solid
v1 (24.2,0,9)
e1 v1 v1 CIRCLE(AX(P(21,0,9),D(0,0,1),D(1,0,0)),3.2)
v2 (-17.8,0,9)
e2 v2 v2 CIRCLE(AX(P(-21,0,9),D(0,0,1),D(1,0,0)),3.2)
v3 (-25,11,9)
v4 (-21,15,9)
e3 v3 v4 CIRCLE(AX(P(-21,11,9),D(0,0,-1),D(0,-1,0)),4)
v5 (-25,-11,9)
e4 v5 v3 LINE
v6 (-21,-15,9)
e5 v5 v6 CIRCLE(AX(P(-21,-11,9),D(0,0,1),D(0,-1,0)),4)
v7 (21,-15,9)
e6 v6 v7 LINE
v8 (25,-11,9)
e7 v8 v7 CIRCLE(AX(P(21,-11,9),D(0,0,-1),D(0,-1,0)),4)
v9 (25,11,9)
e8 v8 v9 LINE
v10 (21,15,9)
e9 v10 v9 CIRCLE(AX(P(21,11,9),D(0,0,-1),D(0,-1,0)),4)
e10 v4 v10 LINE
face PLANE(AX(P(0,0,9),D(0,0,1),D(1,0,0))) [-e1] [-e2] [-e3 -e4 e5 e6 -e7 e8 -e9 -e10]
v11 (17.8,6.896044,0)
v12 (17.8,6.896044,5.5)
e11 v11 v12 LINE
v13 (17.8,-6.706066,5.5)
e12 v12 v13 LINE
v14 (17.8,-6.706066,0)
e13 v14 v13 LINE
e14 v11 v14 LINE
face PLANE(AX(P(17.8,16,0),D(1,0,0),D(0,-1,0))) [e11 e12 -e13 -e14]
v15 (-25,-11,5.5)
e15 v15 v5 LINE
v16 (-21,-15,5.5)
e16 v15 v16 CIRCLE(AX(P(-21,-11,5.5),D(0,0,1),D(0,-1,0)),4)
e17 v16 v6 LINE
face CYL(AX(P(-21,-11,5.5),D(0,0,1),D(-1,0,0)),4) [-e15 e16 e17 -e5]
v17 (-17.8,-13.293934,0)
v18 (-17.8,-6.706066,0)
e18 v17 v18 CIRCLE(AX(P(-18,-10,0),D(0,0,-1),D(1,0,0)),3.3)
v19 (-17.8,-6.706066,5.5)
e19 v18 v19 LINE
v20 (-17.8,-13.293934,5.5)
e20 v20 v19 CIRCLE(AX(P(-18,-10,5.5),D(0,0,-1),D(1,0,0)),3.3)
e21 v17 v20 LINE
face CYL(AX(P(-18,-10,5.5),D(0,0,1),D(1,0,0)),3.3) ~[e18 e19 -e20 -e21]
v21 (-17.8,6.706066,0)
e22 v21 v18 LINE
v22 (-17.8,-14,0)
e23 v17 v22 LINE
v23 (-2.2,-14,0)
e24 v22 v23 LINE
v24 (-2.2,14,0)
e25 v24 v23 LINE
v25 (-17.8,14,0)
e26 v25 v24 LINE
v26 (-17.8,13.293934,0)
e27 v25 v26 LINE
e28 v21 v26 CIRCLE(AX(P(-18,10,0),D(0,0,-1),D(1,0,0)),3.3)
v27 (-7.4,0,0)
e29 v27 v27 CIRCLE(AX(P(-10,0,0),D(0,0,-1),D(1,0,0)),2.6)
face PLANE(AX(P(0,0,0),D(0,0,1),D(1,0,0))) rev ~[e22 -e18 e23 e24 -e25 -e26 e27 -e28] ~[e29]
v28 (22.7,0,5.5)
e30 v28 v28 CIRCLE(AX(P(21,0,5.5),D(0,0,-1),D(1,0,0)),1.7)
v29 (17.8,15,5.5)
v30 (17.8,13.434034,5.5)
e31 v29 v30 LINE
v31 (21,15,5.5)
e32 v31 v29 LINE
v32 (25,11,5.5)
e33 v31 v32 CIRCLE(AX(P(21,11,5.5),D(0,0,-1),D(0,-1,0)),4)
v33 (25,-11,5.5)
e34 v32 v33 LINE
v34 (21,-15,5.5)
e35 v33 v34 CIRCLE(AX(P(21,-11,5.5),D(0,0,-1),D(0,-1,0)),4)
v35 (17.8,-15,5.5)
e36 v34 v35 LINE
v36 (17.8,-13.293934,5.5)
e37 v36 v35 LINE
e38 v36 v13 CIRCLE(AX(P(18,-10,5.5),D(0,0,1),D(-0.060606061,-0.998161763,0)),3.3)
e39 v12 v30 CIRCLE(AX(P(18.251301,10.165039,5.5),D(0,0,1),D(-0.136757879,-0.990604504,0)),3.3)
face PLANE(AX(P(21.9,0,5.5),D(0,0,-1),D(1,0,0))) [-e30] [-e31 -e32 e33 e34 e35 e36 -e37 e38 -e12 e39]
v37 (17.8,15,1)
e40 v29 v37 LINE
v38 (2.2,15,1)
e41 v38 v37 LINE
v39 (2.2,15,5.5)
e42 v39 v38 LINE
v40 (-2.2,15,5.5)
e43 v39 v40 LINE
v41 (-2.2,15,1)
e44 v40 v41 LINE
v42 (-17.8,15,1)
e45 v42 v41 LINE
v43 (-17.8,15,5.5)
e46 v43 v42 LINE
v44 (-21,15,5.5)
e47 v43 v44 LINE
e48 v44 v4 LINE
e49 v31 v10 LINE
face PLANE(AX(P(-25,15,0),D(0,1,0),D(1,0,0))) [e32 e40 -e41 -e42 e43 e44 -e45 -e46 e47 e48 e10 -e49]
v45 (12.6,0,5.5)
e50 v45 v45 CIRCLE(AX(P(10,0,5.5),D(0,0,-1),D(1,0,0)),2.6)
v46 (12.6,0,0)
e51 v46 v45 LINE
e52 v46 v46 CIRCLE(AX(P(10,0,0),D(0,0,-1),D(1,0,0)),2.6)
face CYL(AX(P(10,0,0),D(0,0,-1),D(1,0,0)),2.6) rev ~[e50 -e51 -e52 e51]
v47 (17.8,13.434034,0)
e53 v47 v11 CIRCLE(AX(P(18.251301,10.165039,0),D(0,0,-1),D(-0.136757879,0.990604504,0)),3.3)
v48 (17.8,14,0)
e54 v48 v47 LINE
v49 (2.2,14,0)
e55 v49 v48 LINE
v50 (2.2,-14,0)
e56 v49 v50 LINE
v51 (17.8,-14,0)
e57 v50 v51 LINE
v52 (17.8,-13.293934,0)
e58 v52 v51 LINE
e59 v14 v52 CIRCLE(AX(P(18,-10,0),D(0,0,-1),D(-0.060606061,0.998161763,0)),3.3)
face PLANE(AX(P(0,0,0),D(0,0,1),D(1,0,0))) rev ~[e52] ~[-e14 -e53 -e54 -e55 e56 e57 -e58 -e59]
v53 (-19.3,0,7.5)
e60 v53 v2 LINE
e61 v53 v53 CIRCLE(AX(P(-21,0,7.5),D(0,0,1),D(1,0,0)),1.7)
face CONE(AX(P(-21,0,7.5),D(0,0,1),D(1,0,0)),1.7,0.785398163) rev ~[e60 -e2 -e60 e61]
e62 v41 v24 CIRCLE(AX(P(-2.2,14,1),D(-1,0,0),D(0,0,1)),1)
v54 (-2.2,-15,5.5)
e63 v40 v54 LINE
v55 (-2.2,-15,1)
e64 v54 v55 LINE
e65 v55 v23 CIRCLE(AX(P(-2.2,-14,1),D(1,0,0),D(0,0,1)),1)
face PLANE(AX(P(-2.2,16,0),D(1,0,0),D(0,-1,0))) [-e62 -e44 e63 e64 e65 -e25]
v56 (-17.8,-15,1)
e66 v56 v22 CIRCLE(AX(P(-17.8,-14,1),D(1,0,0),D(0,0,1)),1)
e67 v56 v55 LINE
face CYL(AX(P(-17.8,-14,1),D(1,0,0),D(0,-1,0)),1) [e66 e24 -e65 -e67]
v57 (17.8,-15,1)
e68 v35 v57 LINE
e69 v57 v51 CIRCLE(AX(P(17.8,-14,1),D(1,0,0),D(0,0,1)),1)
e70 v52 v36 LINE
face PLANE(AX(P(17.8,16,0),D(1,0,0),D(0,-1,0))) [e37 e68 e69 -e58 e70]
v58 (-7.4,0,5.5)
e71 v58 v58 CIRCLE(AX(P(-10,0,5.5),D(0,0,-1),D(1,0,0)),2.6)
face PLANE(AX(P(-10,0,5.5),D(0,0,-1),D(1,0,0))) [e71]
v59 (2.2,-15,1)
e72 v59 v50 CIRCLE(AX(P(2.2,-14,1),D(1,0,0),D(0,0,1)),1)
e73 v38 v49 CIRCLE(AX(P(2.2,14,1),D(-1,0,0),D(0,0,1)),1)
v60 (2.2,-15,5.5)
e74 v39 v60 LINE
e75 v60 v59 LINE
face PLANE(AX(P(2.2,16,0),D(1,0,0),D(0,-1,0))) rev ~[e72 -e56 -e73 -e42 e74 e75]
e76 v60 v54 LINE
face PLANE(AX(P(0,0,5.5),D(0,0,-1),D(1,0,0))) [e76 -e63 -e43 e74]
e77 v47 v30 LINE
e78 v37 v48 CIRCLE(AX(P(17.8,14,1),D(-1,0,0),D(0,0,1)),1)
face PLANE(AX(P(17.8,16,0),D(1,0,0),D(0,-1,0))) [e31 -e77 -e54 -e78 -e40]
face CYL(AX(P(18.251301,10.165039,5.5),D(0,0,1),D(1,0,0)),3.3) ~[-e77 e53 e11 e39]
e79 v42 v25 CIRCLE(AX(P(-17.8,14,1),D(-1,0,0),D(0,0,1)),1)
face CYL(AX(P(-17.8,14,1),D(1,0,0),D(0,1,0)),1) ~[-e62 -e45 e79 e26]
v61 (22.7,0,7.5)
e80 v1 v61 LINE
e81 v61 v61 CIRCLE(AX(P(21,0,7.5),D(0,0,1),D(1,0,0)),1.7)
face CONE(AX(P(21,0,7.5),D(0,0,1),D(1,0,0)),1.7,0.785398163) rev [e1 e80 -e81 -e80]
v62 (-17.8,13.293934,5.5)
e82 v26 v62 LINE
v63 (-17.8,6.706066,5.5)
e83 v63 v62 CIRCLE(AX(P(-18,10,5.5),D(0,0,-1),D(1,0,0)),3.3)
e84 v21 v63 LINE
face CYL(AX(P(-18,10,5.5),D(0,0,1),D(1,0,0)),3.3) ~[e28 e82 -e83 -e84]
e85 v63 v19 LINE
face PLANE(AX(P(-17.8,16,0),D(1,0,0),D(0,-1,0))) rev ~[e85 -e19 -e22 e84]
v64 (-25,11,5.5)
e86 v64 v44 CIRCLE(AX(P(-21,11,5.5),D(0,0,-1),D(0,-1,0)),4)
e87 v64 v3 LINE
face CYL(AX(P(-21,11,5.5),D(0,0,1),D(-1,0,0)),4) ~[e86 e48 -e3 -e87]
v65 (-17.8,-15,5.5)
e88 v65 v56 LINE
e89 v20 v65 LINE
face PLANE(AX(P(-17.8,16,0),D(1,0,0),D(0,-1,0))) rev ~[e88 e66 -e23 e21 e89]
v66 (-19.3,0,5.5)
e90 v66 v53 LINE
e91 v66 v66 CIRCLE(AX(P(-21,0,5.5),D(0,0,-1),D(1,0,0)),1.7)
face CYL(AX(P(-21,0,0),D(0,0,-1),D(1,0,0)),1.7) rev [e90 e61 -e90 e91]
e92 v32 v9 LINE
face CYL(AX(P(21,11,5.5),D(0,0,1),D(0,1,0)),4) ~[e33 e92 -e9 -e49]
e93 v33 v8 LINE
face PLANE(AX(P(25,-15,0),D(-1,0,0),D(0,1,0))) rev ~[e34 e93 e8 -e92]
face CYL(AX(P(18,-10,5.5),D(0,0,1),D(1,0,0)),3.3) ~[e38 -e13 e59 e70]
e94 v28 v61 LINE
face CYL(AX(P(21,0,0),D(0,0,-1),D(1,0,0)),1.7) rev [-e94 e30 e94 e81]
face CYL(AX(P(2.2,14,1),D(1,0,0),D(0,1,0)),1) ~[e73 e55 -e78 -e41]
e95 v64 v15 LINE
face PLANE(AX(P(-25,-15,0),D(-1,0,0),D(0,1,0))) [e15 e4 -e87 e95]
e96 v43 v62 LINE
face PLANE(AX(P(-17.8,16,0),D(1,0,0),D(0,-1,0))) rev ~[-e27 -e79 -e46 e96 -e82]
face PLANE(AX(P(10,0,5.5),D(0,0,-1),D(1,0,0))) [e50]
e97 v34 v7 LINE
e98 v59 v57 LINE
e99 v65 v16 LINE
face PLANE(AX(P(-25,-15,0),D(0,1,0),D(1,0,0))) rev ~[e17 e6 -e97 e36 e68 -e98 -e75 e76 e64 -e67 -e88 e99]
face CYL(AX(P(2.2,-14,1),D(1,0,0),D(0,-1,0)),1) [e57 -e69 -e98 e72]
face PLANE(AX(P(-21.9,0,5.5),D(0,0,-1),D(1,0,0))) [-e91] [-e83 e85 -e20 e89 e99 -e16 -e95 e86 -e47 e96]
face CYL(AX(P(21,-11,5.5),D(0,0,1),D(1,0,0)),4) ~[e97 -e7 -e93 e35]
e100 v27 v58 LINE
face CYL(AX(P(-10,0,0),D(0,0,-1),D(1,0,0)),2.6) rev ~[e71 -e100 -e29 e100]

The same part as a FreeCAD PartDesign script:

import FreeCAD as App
import Part
import Sketcher
Q = App.Units.Quantity


def edges_at(feature, points):
    """Names of the edges that pass closest to the given points."""
    edges = feature.Shape.Edges
    near = lambda p: min(range(len(edges)), key=lambda i: edges[i].distToShape(Part.Vertex(*p))[0])
    return sorted({f"Edge{near(p) + 1}" for p in points})


def add_polygon(sketch, points):
    """Adds a closed chain of lines whose ends are joined by coincident constraints."""
    first, n = sketch.GeometryCount, len(points)
    for a, b in zip(points, points[1:] + points[:1]):
        sketch.addGeometry(Part.LineSegment(App.Vector(*a, 0), App.Vector(*b, 0)), False)
    for i in range(n):
        sketch.addConstraint(Sketcher.Constraint("Coincident", first + i, 2, first + (i + 1) % n, 1))

doc = App.newDocument("Part")
body = doc.addObject("PartDesign::Body", "Body")

# Sketch on XY plane
sketch1 = body.newObject("Sketcher::SketchObject", "Sketch")
sketch1.AttachmentSupport = (doc.getObject("XY_Plane"), [""])
sketch1.MapMode = "FlatFace"
add_polygon(sketch1, [(-25, 15), (-25, -15), (25, -15), (25, 15)])  # lines 0-3
sketch1.addGeometry(Part.Circle(App.Vector(-21, 0, 0), App.Vector(0, 0, 1), 1.7), False)  # 4
sketch1.addGeometry(Part.Circle(App.Vector(21, 0, 0), App.Vector(0, 0, 1), 1.7), False)  # 5
sketch1.addConstraint(Sketcher.Constraint("Vertical", 0))
sketch1.addConstraint(Sketcher.Constraint("Horizontal", 1))
sketch1.addConstraint(Sketcher.Constraint("Vertical", 2))
sketch1.addConstraint(Sketcher.Constraint("Horizontal", 3))
sketch1.addConstraint(Sketcher.Constraint("Equal", 4, 5))
sketch1.addConstraint(Sketcher.Constraint("Symmetric", 4, 3, 5, 3, -1, 1))
sketch1.addConstraint(Sketcher.Constraint("Symmetric", 0, 2, 2, 2, -1, 1))
sketch1.addConstraint(Sketcher.Constraint("PointOnObject", 4, 3, -1))
sketch1.addConstraint(Sketcher.Constraint("Diameter", 4, Q("3.4 mm")))
sketch1.addConstraint(Sketcher.Constraint("DistanceX", 1, 1, 1, 2, Q("50 mm")))
sketch1.addConstraint(Sketcher.Constraint("DistanceY", 0, 2, 0, 1, Q("30 mm")))
sketch1.addConstraint(Sketcher.Constraint("DistanceX", 4, 3, -1, 1, Q("21 mm")))
pad1 = body.newObject("PartDesign::Pad", "Pad")
pad1.Profile = sketch1
pad1.Length = 9
doc.recompute()

chamfer = body.newObject("PartDesign::Chamfer", "Chamfer")
chamfer.Base = (pad1, edges_at(pad1, [(-22.7, 0, 9)]))
chamfer.Size = 1.5
doc.recompute()

chamfer2 = body.newObject("PartDesign::Chamfer", "Chamfer001")
chamfer2.Base = (chamfer, edges_at(chamfer, [(19.3, 0, 9)]))
chamfer2.Size = 1.5

# Sketch on XY plane
sketch2 = body.newObject("Sketcher::SketchObject", "Sketch001")
sketch2.AttachmentSupport = (doc.getObject("XY_Plane"), [""])
sketch2.MapMode = "FlatFace"
sketch2.addGeometry(Part.Circle(App.Vector(-10, 0, 0), App.Vector(0, 0, 1), 2.6), False)  # 0
sketch2.addGeometry(Part.Circle(App.Vector(10, 0, 0), App.Vector(0, 0, 1), 2.6), False)  # 1
add_polygon(sketch2, [(-2.2, -16), (-2.2, 16), (2.2, 16), (2.2, -16)])  # lines 2-5
add_polygon(sketch2, [(-26, -16), (-26, 16), (-17.8, 16), (-17.8, -16)])  # lines 6-9
add_polygon(sketch2, [(17.8, -16), (17.8, 16), (26, 16), (26, -16)])  # lines 10-13
sketch2.addConstraint(Sketcher.Constraint("Vertical", 2))
sketch2.addConstraint(Sketcher.Constraint("Horizontal", 3))
sketch2.addConstraint(Sketcher.Constraint("Vertical", 4))
sketch2.addConstraint(Sketcher.Constraint("Horizontal", 5))
sketch2.addConstraint(Sketcher.Constraint("Vertical", 6))
sketch2.addConstraint(Sketcher.Constraint("Horizontal", 7))
sketch2.addConstraint(Sketcher.Constraint("Vertical", 8))
sketch2.addConstraint(Sketcher.Constraint("Horizontal", 9))
sketch2.addConstraint(Sketcher.Constraint("Vertical", 10))
sketch2.addConstraint(Sketcher.Constraint("Horizontal", 11))
sketch2.addConstraint(Sketcher.Constraint("Vertical", 12))
sketch2.addConstraint(Sketcher.Constraint("Horizontal", 13))
sketch2.addConstraint(Sketcher.Constraint("Equal", 0, 1))
sketch2.addConstraint(Sketcher.Constraint("Symmetric", 0, 3, 1, 3, -1, 1))
sketch2.addConstraint(Sketcher.Constraint("Symmetric", 2, 2, 4, 2, -1, 1))
sketch2.addConstraint(Sketcher.Constraint("Symmetric", 8, 2, 10, 2, -1, 1))
sketch2.addConstraint(Sketcher.Constraint("Symmetric", 6, 2, 12, 2, -1, 1))
sketch2.addConstraint(Sketcher.Constraint("PointOnObject", 0, 3, -1))
sketch2.addConstraint(Sketcher.Constraint("Horizontal", 3, 2, 6, 2))
sketch2.addConstraint(Sketcher.Constraint("Horizontal", 5, 2, 8, 2))
sketch2.addConstraint(Sketcher.Constraint("Diameter", 0, Q("5.2 mm")))
sketch2.addConstraint(Sketcher.Constraint("DistanceY", 2, 1, 2, 2, Q("32 mm")))
sketch2.addConstraint(Sketcher.Constraint("DistanceX", 3, 1, 3, 2, Q("4.4 mm")))
sketch2.addConstraint(Sketcher.Constraint("DistanceX", 7, 1, 7, 2, Q("8.2 mm")))
sketch2.addConstraint(Sketcher.Constraint("DistanceX", 0, 3, -1, 1, Q("10 mm")))
sketch2.addConstraint(Sketcher.Constraint("DistanceX", 6, 2, -1, 1, Q("26 mm")))
pocket1 = body.newObject("PartDesign::Pocket", "Pocket")
pocket1.Profile = sketch2
pocket1.Length = 5.5
pocket1.Reversed = True
doc.recompute()

fillet = body.newObject("PartDesign::Fillet", "Fillet")
fillet.Base = (pocket1, edges_at(pocket1, [(-25, -15, 7.25)]))
fillet.Radius = 4
doc.recompute()

fillet2 = body.newObject("PartDesign::Fillet", "Fillet001")
fillet2.Base = (fillet, edges_at(fillet, [(-25, 15, 7.25)]))
fillet2.Radius = 4
doc.recompute()

fillet3 = body.newObject("PartDesign::Fillet", "Fillet002")
fillet3.Base = (fillet2, edges_at(fillet2, [(25, 15, 7.25)]))
fillet3.Radius = 4
doc.recompute()

fillet4 = body.newObject("PartDesign::Fillet", "Fillet003")
fillet4.Base = (fillet3, edges_at(fillet3, [(25, -15, 7.25)]))
fillet4.Radius = 4
doc.recompute()

fillet5 = body.newObject("PartDesign::Fillet", "Fillet004")
fillet5.Base = (fillet4, edges_at(fillet4, [(-10, 15, 0)]))
fillet5.Radius = 1
doc.recompute()

fillet6 = body.newObject("PartDesign::Fillet", "Fillet005")
fillet6.Base = (fillet5, edges_at(fillet5, [(10, 15, 0)]))
fillet6.Radius = 1
doc.recompute()

fillet7 = body.newObject("PartDesign::Fillet", "Fillet006")
fillet7.Base = (fillet6, edges_at(fillet6, [(-10, -15, 0)]))
fillet7.Radius = 1
doc.recompute()

fillet8 = body.newObject("PartDesign::Fillet", "Fillet007")
fillet8.Base = (fillet7, edges_at(fillet7, [(10, -15, 0)]))
fillet8.Radius = 1

# Sketch on XY plane
sketch3 = body.newObject("Sketcher::SketchObject", "Sketch002")
sketch3.AttachmentSupport = (doc.getObject("XY_Plane"), [""])
sketch3.MapMode = "FlatFace"
sketch3.AttachmentOffset = App.Placement(App.Vector(0, 0, 5.5), App.Rotation())
sketch3.addGeometry(Part.Circle(App.Vector(-18, -10, 0), App.Vector(0, 0, 1), 3.3), False)
sketch3.addGeometry(Part.Circle(App.Vector(18, -10, 0), App.Vector(0, 0, 1), 3.3), False)
sketch3.addGeometry(Part.Circle(App.Vector(-18, 10, 0), App.Vector(0, 0, 1), 3.3), False)
sketch3.addGeometry(Part.Circle(App.Vector(18.3, 10.2, 0), App.Vector(0, 0, 1), 3.3), False)
sketch3.addConstraint(Sketcher.Constraint("Equal", 0, 1))
sketch3.addConstraint(Sketcher.Constraint("Equal", 1, 2))
sketch3.addConstraint(Sketcher.Constraint("Equal", 2, 3))
sketch3.addConstraint(Sketcher.Constraint("Symmetric", 1, 3, 2, 3, -1, 1))
sketch3.addConstraint(Sketcher.Constraint("Symmetric", 0, 3, 1, 3, -2))
sketch3.addConstraint(Sketcher.Constraint("Diameter", 0, Q("6.6 mm")))
sketch3.addConstraint(Sketcher.Constraint("DistanceX", 0, 3, -1, 1, Q("18 mm")))
sketch3.addConstraint(Sketcher.Constraint("DistanceY", 0, 3, -1, 1, Q("10 mm")))
sketch3.addConstraint(Sketcher.Constraint("DistanceX", -1, 1, 3, 3, Q("18.251301 mm")))
sketch3.addConstraint(Sketcher.Constraint("DistanceY", -1, 1, 3, 3, Q("10.165039 mm")))
pad2 = body.newObject("PartDesign::Pad", "Pad001")
pad2.Profile = sketch3
pad2.Length = 5.5
pad2.Reversed = True

doc.recompute()
